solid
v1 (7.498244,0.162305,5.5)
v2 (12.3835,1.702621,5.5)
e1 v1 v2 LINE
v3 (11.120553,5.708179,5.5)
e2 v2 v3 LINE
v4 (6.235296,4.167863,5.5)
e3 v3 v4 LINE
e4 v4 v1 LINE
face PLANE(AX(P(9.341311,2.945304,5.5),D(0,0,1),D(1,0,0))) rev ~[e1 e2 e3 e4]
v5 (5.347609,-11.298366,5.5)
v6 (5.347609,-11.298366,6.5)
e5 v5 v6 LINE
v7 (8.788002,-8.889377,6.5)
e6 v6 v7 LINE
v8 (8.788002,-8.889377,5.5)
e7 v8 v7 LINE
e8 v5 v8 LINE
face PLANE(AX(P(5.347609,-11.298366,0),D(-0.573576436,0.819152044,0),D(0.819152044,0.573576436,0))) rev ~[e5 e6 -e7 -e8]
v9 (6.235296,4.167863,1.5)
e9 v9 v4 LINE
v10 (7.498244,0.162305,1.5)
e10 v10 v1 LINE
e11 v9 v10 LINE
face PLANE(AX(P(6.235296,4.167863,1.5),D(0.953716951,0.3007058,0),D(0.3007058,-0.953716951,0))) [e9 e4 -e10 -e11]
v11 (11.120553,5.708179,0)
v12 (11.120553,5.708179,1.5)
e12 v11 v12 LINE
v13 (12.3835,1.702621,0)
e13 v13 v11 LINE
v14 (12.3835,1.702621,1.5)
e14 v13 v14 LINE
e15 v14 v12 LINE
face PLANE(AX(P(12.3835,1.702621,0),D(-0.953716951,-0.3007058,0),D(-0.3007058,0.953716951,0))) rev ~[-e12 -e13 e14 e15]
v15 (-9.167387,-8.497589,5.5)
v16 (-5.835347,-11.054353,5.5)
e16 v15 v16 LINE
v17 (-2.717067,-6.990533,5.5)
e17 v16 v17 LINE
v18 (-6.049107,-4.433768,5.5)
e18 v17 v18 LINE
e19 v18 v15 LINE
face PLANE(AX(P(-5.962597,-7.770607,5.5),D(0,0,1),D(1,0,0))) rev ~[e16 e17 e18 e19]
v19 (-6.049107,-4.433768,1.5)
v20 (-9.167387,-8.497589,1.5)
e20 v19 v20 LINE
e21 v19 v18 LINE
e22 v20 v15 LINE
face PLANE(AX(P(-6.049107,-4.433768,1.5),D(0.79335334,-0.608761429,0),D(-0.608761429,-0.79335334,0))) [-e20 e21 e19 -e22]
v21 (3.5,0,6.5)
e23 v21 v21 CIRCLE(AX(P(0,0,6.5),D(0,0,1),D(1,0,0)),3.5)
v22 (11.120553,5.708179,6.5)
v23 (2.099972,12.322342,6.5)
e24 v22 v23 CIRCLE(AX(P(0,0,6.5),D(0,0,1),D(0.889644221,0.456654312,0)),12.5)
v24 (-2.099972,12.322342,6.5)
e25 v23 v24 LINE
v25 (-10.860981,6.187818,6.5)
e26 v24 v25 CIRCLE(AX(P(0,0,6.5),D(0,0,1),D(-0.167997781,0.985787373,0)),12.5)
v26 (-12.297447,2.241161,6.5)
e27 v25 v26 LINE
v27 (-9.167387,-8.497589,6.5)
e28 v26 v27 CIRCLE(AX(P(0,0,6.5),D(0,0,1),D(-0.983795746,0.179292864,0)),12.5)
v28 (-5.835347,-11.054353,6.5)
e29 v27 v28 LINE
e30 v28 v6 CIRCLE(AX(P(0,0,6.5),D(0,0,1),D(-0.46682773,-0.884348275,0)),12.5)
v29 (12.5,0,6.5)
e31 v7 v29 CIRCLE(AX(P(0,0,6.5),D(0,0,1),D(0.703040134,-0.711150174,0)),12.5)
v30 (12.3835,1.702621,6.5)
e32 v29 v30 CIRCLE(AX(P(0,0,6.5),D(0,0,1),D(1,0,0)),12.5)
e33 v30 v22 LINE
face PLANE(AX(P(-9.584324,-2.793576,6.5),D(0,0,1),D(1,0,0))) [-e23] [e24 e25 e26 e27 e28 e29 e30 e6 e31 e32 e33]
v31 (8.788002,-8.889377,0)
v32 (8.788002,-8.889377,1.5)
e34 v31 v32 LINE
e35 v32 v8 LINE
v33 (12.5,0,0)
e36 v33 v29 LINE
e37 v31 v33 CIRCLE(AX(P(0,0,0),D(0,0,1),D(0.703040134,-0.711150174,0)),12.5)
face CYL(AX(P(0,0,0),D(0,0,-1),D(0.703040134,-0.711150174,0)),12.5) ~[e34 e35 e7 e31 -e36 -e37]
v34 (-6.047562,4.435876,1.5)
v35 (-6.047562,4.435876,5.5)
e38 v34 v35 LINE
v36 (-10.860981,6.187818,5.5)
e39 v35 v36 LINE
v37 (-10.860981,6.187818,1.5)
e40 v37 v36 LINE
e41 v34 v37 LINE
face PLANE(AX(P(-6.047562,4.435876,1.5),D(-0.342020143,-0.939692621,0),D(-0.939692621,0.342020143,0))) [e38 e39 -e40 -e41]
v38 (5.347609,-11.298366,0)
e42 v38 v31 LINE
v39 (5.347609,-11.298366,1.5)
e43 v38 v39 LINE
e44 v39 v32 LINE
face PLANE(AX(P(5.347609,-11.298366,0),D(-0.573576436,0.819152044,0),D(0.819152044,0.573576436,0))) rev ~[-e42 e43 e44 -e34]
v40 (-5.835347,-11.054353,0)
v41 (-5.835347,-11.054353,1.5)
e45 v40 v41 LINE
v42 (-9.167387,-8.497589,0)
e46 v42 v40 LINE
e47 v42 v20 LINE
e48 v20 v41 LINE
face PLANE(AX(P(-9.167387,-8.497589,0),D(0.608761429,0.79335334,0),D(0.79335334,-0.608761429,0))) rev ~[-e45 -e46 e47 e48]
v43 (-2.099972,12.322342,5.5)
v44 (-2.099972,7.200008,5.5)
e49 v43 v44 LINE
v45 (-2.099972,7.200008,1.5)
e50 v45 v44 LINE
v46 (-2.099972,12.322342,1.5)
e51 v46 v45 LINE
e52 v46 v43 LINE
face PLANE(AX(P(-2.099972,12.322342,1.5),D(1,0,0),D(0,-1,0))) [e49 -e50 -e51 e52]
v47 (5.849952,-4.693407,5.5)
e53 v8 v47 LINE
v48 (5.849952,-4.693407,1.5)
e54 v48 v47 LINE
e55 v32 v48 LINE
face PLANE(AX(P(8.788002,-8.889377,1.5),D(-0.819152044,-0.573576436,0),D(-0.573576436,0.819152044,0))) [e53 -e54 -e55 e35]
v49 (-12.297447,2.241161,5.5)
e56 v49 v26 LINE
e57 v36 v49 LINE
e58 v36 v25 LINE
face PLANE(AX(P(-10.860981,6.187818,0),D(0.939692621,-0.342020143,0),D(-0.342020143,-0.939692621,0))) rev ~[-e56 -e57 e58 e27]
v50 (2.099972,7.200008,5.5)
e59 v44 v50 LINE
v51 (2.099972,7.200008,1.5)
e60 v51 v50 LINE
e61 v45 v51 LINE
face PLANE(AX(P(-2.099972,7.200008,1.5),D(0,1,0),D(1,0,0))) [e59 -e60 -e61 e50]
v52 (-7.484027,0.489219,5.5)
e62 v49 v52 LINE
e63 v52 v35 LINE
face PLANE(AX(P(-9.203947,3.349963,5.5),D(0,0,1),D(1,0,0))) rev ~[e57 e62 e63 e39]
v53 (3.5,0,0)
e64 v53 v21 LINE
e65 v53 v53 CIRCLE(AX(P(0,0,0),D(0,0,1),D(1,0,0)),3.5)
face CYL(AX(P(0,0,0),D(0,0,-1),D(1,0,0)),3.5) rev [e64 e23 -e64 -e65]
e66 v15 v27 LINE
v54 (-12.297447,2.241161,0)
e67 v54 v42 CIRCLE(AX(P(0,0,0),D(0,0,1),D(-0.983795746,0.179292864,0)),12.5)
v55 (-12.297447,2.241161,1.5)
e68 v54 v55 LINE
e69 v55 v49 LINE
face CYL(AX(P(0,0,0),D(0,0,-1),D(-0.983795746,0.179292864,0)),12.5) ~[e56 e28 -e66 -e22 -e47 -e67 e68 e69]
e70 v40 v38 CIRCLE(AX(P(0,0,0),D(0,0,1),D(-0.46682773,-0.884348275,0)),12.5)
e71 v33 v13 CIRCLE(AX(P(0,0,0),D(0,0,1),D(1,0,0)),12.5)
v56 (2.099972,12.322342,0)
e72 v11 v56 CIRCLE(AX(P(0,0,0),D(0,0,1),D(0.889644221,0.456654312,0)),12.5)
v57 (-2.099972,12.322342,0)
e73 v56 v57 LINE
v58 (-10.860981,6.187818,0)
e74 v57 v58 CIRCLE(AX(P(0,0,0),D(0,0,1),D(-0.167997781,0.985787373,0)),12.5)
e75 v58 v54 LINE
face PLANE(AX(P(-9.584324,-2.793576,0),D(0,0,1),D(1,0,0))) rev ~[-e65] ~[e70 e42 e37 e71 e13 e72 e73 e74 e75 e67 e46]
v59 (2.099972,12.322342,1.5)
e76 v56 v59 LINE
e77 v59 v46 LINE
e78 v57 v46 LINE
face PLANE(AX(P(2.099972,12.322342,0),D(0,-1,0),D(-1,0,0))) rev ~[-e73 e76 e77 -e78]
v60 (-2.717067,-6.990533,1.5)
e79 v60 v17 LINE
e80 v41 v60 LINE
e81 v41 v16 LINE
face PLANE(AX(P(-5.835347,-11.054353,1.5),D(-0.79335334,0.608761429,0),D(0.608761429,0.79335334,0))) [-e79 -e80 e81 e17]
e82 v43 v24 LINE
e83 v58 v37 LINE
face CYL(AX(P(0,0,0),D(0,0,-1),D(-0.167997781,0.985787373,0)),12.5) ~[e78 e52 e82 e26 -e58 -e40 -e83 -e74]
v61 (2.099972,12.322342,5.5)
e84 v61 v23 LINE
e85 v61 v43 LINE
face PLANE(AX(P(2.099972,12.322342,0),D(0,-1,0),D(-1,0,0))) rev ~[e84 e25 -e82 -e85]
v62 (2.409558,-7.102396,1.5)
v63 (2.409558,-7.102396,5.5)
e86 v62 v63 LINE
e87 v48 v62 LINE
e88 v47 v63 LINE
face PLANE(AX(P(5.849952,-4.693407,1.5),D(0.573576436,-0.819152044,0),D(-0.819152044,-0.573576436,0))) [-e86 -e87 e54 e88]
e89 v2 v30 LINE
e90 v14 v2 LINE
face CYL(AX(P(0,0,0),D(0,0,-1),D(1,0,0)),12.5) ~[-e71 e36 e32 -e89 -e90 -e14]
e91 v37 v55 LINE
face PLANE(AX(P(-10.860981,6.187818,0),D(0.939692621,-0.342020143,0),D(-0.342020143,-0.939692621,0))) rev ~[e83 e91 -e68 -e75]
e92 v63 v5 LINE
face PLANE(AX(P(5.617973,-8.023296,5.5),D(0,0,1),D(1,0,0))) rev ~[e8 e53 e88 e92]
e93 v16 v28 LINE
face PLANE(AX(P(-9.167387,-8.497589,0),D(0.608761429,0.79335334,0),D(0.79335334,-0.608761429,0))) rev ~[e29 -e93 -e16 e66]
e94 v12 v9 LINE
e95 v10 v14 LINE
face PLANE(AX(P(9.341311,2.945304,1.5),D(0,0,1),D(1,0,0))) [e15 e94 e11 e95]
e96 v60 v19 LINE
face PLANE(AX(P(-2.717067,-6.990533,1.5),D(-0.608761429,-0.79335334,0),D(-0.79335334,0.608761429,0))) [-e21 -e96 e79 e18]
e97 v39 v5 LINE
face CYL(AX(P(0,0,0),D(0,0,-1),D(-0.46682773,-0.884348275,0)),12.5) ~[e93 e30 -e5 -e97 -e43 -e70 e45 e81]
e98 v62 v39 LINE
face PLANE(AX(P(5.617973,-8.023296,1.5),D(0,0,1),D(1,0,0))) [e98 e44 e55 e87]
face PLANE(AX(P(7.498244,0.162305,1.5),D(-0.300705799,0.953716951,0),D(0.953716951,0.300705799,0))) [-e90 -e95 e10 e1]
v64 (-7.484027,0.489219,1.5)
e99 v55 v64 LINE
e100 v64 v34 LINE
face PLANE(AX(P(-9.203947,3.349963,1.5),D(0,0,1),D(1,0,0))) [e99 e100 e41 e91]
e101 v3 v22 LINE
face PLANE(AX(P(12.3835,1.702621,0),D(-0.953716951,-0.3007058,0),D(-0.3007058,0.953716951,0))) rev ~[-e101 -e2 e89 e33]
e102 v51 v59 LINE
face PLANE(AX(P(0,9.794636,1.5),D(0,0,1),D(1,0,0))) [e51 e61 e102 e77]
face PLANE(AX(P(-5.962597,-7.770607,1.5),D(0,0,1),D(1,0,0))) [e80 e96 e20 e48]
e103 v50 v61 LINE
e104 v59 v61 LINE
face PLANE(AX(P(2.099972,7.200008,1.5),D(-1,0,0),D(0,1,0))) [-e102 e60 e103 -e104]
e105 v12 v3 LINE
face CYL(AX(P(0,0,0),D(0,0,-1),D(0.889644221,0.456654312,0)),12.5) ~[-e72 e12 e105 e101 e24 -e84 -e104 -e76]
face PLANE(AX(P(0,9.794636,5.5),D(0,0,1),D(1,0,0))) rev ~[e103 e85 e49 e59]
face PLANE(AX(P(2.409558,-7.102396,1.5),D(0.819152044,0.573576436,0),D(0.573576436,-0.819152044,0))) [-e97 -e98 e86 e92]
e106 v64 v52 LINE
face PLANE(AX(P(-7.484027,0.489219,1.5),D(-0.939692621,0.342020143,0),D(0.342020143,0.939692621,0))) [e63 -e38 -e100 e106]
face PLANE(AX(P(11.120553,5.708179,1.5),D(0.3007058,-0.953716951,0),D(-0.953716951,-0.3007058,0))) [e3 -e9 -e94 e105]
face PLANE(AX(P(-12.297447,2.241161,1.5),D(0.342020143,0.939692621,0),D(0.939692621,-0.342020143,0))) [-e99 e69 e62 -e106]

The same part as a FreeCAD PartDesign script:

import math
import FreeCAD as App
import Part
import Sketcher
Q = App.Units.Quantity

doc = App.newDocument("Part")
params = doc.addObject("Spreadsheet::Sheet", "Params")
for row, (alias, value) in enumerate([
    ("sketch1_diameter", "7 mm"),
    ("sketch1_radius", "12.5 mm"),
    ("pad1_length", "6.5 mm"),
    ("pocket1_length", "4 mm"),
], start=1):
    params.set(f"A{row}", alias)
    params.set(f"B{row}", "=" + value)
    params.setAlias(f"B{row}", alias)

body = doc.addObject("PartDesign::Body", "Body")

# Sketch on XY plane
sketch1 = doc.addObject("Sketcher::SketchObject", "Sketch")
body.addObject(sketch1)
sketch1.AttachmentSupport = (doc.XY_Plane, [""])
sketch1.MapMode = "FlatFace"
sketch1.addGeometry(Part.ArcOfCircle(Part.Circle(App.Vector(0, 0, 0), App.Vector(0, 0, 1), 12.5), math.radians(27), math.radians(80)), False)
sketch1.addGeometry(Part.LineSegment(App.Vector(2.1, 12.3, 0), App.Vector(-2.1, 12.3, 0)), False)
sketch1.addGeometry(Part.ArcOfCircle(Part.Circle(App.Vector(0, 0, 0), App.Vector(0, 0, 1), 12.5), math.radians(100), math.radians(150)), False)
sketch1.addGeometry(Part.LineSegment(App.Vector(-10.9, 6.2, 0), App.Vector(-12.3, 2.2, 0)), False)
sketch1.addGeometry(Part.ArcOfCircle(Part.Circle(App.Vector(0, 0, 0), App.Vector(0, 0, 1), 12.5), math.radians(170), math.radians(223)), False)
sketch1.addGeometry(Part.LineSegment(App.Vector(-9.2, -8.5, 0), App.Vector(-5.8, -11.1, 0)), False)
sketch1.addGeometry(Part.ArcOfCircle(Part.Circle(App.Vector(0, 0, 0), App.Vector(0, 0, 1), 12.5), math.radians(-118), math.radians(-65)), False)
sketch1.addGeometry(Part.LineSegment(App.Vector(5.3, -11.3, 0), App.Vector(8.8, -8.9, 0)), False)
sketch1.addGeometry(Part.ArcOfCircle(Part.Circle(App.Vector(0, 0, 0), App.Vector(0, 0, 1), 12.5), math.radians(-45), math.radians(0)), False)
sketch1.addGeometry(Part.ArcOfCircle(Part.Circle(App.Vector(0, 0, 0), App.Vector(0, 0, 1), 12.5), math.radians(0), math.radians(7.83)), False)
sketch1.addGeometry(Part.LineSegment(App.Vector(12.4, 1.7, 0), App.Vector(11.1, 5.7, 0)), False)
sketch1.addGeometry(Part.Circle(App.Vector(0, 0, 0), App.Vector(0, 0, 1), 3.5), False)
sketch1.addConstraint(Sketcher.Constraint("Coincident", 0, 2, 1, 1))
sketch1.addConstraint(Sketcher.Constraint("Coincident", 1, 2, 2, 1))
sketch1.addConstraint(Sketcher.Constraint("Coincident", 2, 2, 3, 1))
sketch1.addConstraint(Sketcher.Constraint("Coincident", 3, 2, 4, 1))
sketch1.addConstraint(Sketcher.Constraint("Coincident", 4, 2, 5, 1))
sketch1.addConstraint(Sketcher.Constraint("Coincident", 5, 2, 6, 1))
sketch1.addConstraint(Sketcher.Constraint("Coincident", 6, 2, 7, 1))
sketch1.addConstraint(Sketcher.Constraint("Coincident", 7, 2, 8, 1))
sketch1.addConstraint(Sketcher.Constraint("Tangent", 8, 2, 9, 1))
sketch1.addConstraint(Sketcher.Constraint("Coincident", 9, 2, 10, 1))
sketch1.addConstraint(Sketcher.Constraint("Coincident", 10, 2, 0, 1))
sketch1.addConstraint(Sketcher.Constraint("Horizontal", 1))
sketch1.addConstraint(Sketcher.Constraint("Coincident", 0, 3, -1, 1))
sketch1.addConstraint(Sketcher.Constraint("Coincident", 2, 3, -1, 1))
sketch1.addConstraint(Sketcher.Constraint("Coincident", 4, 3, -1, 1))
sketch1.addConstraint(Sketcher.Constraint("Coincident", 6, 3, -1, 1))
sketch1.addConstraint(Sketcher.Constraint("Coincident", 8, 3, -1, 1))
sketch1.addConstraint(Sketcher.Constraint("Coincident", 11, 3, -1, 1))
sketch1.addConstraint(Sketcher.Constraint("Equal", 0, 2))
sketch1.addConstraint(Sketcher.Constraint("Equal", 2, 4))
sketch1.addConstraint(Sketcher.Constraint("Equal", 4, 6))
sketch1.addConstraint(Sketcher.Constraint("Equal", 6, 8))
sketch1.addConstraint(Sketcher.Constraint("Equal", 8, 9))
sketch1.addConstraint(Sketcher.Constraint("PointOnObject", 8, 2, -1))
sketch1.addConstraint(Sketcher.Constraint("Equal", 3, 5))
sketch1.addConstraint(Sketcher.Constraint("Equal", 5, 7))
sketch1.addConstraint(Sketcher.Constraint("Equal", 7, 10))
sketch1.addConstraint(Sketcher.Constraint("Diameter", 11, 7.0))
sketch1.addConstraint(Sketcher.Constraint("Radius", 0, 12.5))
sketch1.addConstraint(Sketcher.Constraint("Angle", 3, Q("-110 deg")))
sketch1.addConstraint(Sketcher.Constraint("Angle", 7, Q("35 deg")))
sketch1.addConstraint(Sketcher.Constraint("Angle", 5, Q("-37.5 deg")))
sketch1.addConstraint(Sketcher.Constraint("Angle", 10, Q("107.5 deg")))
sketch1.addConstraint(Sketcher.Constraint("DistanceX", -1, 1, 7, 2, 8.788002))
sketch1.addConstraint(Sketcher.Constraint("DistanceX", 1, 2, 1, 1, 4.199945))
sketch1.setExpression("Constraints[27]", "Params.sketch1_diameter")
sketch1.setExpression("Constraints[28]", "Params.sketch1_radius")
pad1 = doc.addObject("PartDesign::Pad", "Pad")
body.addObject(pad1)
pad1.Profile = sketch1
pad1.setExpression("Length", "Params.pad1_length")

# Sketch on XY plane
sketch2 = doc.addObject("Sketcher::SketchObject", "Sketch001")
body.addObject(sketch2)
sketch2.AttachmentSupport = (doc.XY_Plane, [""])
sketch2.MapMode = "FlatFace"
sketch2.AttachmentOffset = App.Placement(App.Vector(0, 0, 1.5), App.Rotation())
sketch2.addGeometry(Part.LineSegment(App.Vector(-5.8, -11.1, 0), App.Vector(-2.7, -7, 0)), False)
sketch2.addGeometry(Part.LineSegment(App.Vector(-2.7, -7, 0), App.Vector(-6, -4.4, 0)), False)
sketch2.addGeometry(Part.LineSegment(App.Vector(-6, -4.4, 0), App.Vector(-9.2, -8.5, 0)), False)
sketch2.addGeometry(Part.LineSegment(App.Vector(-9.2, -8.5, 0), App.Vector(-5.8, -11.1, 0)), False)
sketch2.addGeometry(Part.LineSegment(App.Vector(-6, 4.4, 0), App.Vector(-10.9, 6.2, 0)), False)
sketch2.addGeometry(Part.LineSegment(App.Vector(-10.9, 6.2, 0), App.Vector(-12.3, 2.2, 0)), False)
sketch2.addGeometry(Part.LineSegment(App.Vector(-12.3, 2.2, 0), App.Vector(-7.5, 0.5, 0)), False)
sketch2.addGeometry(Part.LineSegment(App.Vector(-7.5, 0.5, 0), App.Vector(-6, 4.4, 0)), False)
sketch2.addGeometry(Part.LineSegment(App.Vector(2.1, 7.2, 0), App.Vector(2.1, 12.3, 0)), False)
sketch2.addGeometry(Part.LineSegment(App.Vector(2.1, 12.3, 0), App.Vector(-2.1, 12.3, 0)), False)
sketch2.addGeometry(Part.LineSegment(App.Vector(-2.1, 12.3, 0), App.Vector(-2.1, 7.2, 0)), False)
sketch2.addGeometry(Part.LineSegment(App.Vector(-2.1, 7.2, 0), App.Vector(2.1, 7.2, 0)), False)
sketch2.addGeometry(Part.LineSegment(App.Vector(7.5, 0.2, 0), App.Vector(12.4, 1.7, 0)), False)
sketch2.addGeometry(Part.LineSegment(App.Vector(12.4, 1.7, 0), App.Vector(11.1, 5.7, 0)), False)
sketch2.addGeometry(Part.LineSegment(App.Vector(11.1, 5.7, 0), App.Vector(6.2, 4.2, 0)), False)
sketch2.addGeometry(Part.LineSegment(App.Vector(6.2, 4.2, 0), App.Vector(7.5, 0.2, 0)), False)
sketch2.addGeometry(Part.LineSegment(App.Vector(8.8, -8.9, 0), App.Vector(5.8, -4.7, 0)), False)
sketch2.addGeometry(Part.LineSegment(App.Vector(5.8, -4.7, 0), App.Vector(2.4, -7.1, 0)), False)
sketch2.addGeometry(Part.LineSegment(App.Vector(2.4, -7.1, 0), App.Vector(5.3, -11.3, 0)), False)
sketch2.addGeometry(Part.LineSegment(App.Vector(5.3, -11.3, 0), App.Vector(8.8, -8.9, 0)), False)
sketch2.addConstraint(Sketcher.Constraint("Coincident", 0, 2, 1, 1))
sketch2.addConstraint(Sketcher.Constraint("Coincident", 1, 2, 2, 1))
sketch2.addConstraint(Sketcher.Constraint("Coincident", 2, 2, 3, 1))
sketch2.addConstraint(Sketcher.Constraint("Coincident", 3, 2, 0, 1))
sketch2.addConstraint(Sketcher.Constraint("Coincident", 4, 2, 5, 1))
sketch2.addConstraint(Sketcher.Constraint("Coincident", 5, 2, 6, 1))
sketch2.addConstraint(Sketcher.Constraint("Coincident", 6, 2, 7, 1))
sketch2.addConstraint(Sketcher.Constraint("Coincident", 7, 2, 4, 1))
sketch2.addConstraint(Sketcher.Constraint("Coincident", 8, 2, 9, 1))
sketch2.addConstraint(Sketcher.Constraint("Coincident", 9, 2, 10, 1))
sketch2.addConstraint(Sketcher.Constraint("Coincident", 10, 2, 11, 1))
sketch2.addConstraint(Sketcher.Constraint("Coincident", 11, 2, 8, 1))
sketch2.addConstraint(Sketcher.Constraint("Coincident", 12, 2, 13, 1))
sketch2.addConstraint(Sketcher.Constraint("Coincident", 13, 2, 14, 1))
sketch2.addConstraint(Sketcher.Constraint("Coincident", 14, 2, 15, 1))
sketch2.addConstraint(Sketcher.Constraint("Coincident", 15, 2, 12, 1))
sketch2.addConstraint(Sketcher.Constraint("Coincident", 16, 2, 17, 1))
sketch2.addConstraint(Sketcher.Constraint("Coincident", 17, 2, 18, 1))
sketch2.addConstraint(Sketcher.Constraint("Coincident", 18, 2, 19, 1))
sketch2.addConstraint(Sketcher.Constraint("Coincident", 19, 2, 16, 1))
sketch2.addConstraint(Sketcher.Constraint("Vertical", 8))
sketch2.addConstraint(Sketcher.Constraint("Horizontal", 9))
sketch2.addConstraint(Sketcher.Constraint("Vertical", 10))
sketch2.addConstraint(Sketcher.Constraint("Horizontal", 11))
sketch2.addConstraint(Sketcher.Constraint("Perpendicular", 0, 1))
sketch2.addConstraint(Sketcher.Constraint("Perpendicular", 1, 2))
sketch2.addConstraint(Sketcher.Constraint("Perpendicular", 2, 3))
sketch2.addConstraint(Sketcher.Constraint("Perpendicular", 4, 5))
sketch2.addConstraint(Sketcher.Constraint("Perpendicular", 5, 6))
sketch2.addConstraint(Sketcher.Constraint("Perpendicular", 6, 7))
sketch2.addConstraint(Sketcher.Constraint("Perpendicular", 12, 13))
sketch2.addConstraint(Sketcher.Constraint("Perpendicular", 13, 14))
sketch2.addConstraint(Sketcher.Constraint("Perpendicular", 14, 15))
sketch2.addConstraint(Sketcher.Constraint("Perpendicular", 16, 17))
sketch2.addConstraint(Sketcher.Constraint("Perpendicular", 17, 18))
sketch2.addConstraint(Sketcher.Constraint("Perpendicular", 18, 19))
sketch2.addConstraint(Sketcher.Constraint("Equal", 2, 4))
sketch2.addConstraint(Sketcher.Constraint("Equal", 3, 5))
sketch2.addConstraint(Sketcher.Constraint("Equal", 6, 12))
sketch2.addConstraint(Sketcher.Constraint("Equal", 7, 13))
sketch2.addConstraint(Sketcher.Constraint("Equal", 14, 16))
sketch2.addConstraint(Sketcher.Constraint("Equal", 15, 17))
sketch2.addConstraint(Sketcher.Constraint("Angle", 4, Q("160 deg")))
sketch2.addConstraint(Sketcher.Constraint("Angle", 16, Q("125 deg")))
sketch2.addConstraint(Sketcher.Constraint("Angle", 0, Q("52.5 deg")))
sketch2.addConstraint(Sketcher.Constraint("Angle", 12, Q("17.5 deg")))
sketch2.addConstraint(Sketcher.Constraint("DistanceX", -1, 1, 19, 2, 8.788002))
sketch2.addConstraint(Sketcher.Constraint("DistanceX", 6, 2, 8, 2, 9.584))
sketch2.addConstraint(Sketcher.Constraint("DistanceX", -1, 1, 12, 2, 12.3835))
sketch2.addConstraint(Sketcher.Constraint("DistanceX", 5, 2, 3, 2, 6.4621))
sketch2.addConstraint(Sketcher.Constraint("DistanceY", 6, 2, 4, 2, 5.698598))
sketch2.addConstraint(Sketcher.Constraint("DistanceX", 16, 2, 13, 2, 5.270601))
sketch2.addConstraint(Sketcher.Constraint("DistanceY", 17, 2, 15, 2, 7.264701))
sketch2.addConstraint(Sketcher.Constraint("DistanceX", 9, 2, 9, 1, 4.199945))
sketch2.addConstraint(Sketcher.Constraint("DistanceY", 8, 1, 8, 2, 5.122334))
sketch2.addConstraint(Sketcher.Constraint("DistanceY", 1, 2, -1, 1, 4.433768))
sketch2.addConstraint(Sketcher.Constraint("DistanceX", 4, 2, -1, 1, 10.860981))
sketch2.addConstraint(Sketcher.Constraint("DistanceY", -1, 1, 5, 2, 2.241161))
sketch2.addConstraint(Sketcher.Constraint("DistanceY", -1, 1, 10, 2, 7.200008))
sketch2.addConstraint(Sketcher.Constraint("DistanceY", -1, 1, 12, 2, 1.702621))
pocket1 = doc.addObject("PartDesign::Pocket", "Pocket")
body.addObject(pocket1)
pocket1.Profile = sketch2
pocket1.setExpression("Length", "Params.pocket1_length")
pocket1.Reversed = True

doc.recompute()
